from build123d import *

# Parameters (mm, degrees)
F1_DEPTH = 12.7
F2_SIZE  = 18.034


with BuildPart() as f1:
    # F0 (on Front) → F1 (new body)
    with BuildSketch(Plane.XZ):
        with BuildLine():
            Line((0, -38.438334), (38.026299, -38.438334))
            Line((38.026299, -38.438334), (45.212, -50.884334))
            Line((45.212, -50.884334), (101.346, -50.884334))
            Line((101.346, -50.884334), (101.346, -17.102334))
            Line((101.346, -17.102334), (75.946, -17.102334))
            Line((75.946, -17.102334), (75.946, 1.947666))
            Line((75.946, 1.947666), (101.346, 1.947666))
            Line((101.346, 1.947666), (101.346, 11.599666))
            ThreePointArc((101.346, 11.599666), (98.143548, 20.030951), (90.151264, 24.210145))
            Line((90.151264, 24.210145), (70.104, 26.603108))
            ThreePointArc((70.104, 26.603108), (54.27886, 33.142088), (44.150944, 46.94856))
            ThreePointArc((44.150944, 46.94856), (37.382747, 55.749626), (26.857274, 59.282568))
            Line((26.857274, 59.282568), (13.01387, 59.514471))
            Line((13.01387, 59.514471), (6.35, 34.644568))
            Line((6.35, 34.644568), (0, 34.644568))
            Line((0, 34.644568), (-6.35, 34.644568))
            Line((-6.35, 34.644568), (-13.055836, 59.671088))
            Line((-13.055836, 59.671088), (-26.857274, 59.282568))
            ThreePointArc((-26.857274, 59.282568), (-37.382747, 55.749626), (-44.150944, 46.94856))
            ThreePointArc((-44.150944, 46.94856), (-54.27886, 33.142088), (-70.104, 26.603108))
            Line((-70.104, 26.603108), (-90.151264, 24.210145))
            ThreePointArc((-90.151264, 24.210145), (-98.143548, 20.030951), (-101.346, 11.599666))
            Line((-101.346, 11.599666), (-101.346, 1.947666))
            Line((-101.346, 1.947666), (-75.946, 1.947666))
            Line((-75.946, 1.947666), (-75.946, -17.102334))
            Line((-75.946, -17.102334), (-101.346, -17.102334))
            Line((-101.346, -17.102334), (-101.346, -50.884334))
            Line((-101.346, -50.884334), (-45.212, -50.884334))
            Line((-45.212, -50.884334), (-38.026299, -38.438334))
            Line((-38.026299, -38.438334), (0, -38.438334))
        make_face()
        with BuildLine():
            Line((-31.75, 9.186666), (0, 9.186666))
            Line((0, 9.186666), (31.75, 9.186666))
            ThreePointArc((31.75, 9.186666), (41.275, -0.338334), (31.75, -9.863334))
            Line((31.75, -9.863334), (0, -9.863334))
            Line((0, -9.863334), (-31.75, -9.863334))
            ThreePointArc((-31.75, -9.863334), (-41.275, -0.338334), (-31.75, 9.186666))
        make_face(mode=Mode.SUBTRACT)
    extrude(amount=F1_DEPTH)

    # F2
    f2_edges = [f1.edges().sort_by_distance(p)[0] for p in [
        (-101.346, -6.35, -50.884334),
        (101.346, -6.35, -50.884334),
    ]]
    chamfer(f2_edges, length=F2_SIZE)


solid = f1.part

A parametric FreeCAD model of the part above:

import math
import FreeCAD as App
import Part
import Sketcher
Q = App.Units.Quantity


def edges_at(feature, points):
    """Names of the edges that pass closest to the given points."""
    edges = feature.Shape.Edges
    near = lambda p: min(range(len(edges)), key=lambda i: edges[i].distToShape(Part.Vertex(*p))[0])
    return sorted({f"Edge{near(p) + 1}" for p in points})

doc = App.newDocument("Part")
body = doc.addObject("PartDesign::Body", "Body")

# Sketch on XZ plane
sketch1 = doc.addObject("Sketcher::SketchObject", "Sketch")
body.addObject(sketch1)
sketch1.AttachmentSupport = (doc.XZ_Plane, [""])
sketch1.MapMode = "FlatFace"
sketch1.addGeometry([
    Part.LineSegment(App.Vector(38.026299, -38.438334, 0), App.Vector(45.212, -50.884334, 0)),  # 0
    Part.LineSegment(App.Vector(45.212, -50.884334, 0), App.Vector(101.346, -50.884334, 0)),  # 1
    Part.LineSegment(App.Vector(101.346, -50.884334, 0), App.Vector(101.346, -17.102334, 0)),  # 2
    Part.LineSegment(App.Vector(101.346, -17.102334, 0), App.Vector(75.946, -17.102334, 0)),  # 3
    Part.LineSegment(App.Vector(75.946, -17.102334, 0), App.Vector(75.946, 1.947666, 0)),  # 4
    Part.LineSegment(App.Vector(75.946, 1.947666, 0), App.Vector(101.346, 1.947666, 0)),  # 5
    Part.LineSegment(App.Vector(101.346, 1.947666, 0), App.Vector(101.346, 11.599666, 0)),  # 6
    Part.ArcOfCircle(Part.Circle(App.Vector(88.645998, 11.599664, 0), App.Vector(0, 0, 1), 12.700002), math.radians(0.000007), math.radians(83.193025)),  # 7
    Part.LineSegment(App.Vector(90.151264, 24.210145, 0), App.Vector(70.104, 26.603108, 0)),  # 8
    Part.ArcOfCircle(Part.Circle(App.Vector(73.867159, 58.129306, 0), App.Vector(0, 0, 1), 31.75), math.radians(-159.381157), math.radians(-96.806966)),  # 9
    Part.ArcOfCircle(Part.Circle(App.Vector(26.321217, 40.240114, 0), App.Vector(0, 0, 1), 19.049998), math.radians(20.618842), math.radians(88.387513)),  # 10
    Part.LineSegment(App.Vector(26.857274, 59.282568, 0), App.Vector(13.01387, 59.514471, 0)),  # 11
    Part.LineSegment(App.Vector(13.01387, 59.514471, 0), App.Vector(6.35, 34.644568, 0)),  # 12
    Part.LineSegment(App.Vector(6.35, 34.644568, 0), App.Vector(-6.35, 34.644568, 0)),  # 13
    Part.LineSegment(App.Vector(-6.35, 34.644568, 0), App.Vector(-13.055836, 59.671088, 0)),  # 14
    Part.LineSegment(App.Vector(-13.055836, 59.671088, 0), App.Vector(-26.857274, 59.282568, 0)),  # 15
    Part.ArcOfCircle(Part.Circle(App.Vector(-26.321217, 40.240114, 0), App.Vector(0, 0, 1), 19.049998), math.radians(91.612487), math.radians(159.381158)),  # 16
    Part.ArcOfCircle(Part.Circle(App.Vector(-73.867159, 58.129306, 0), App.Vector(0, 0, 1), 31.75), math.radians(-83.193034), math.radians(-20.618843)),  # 17
    Part.LineSegment(App.Vector(-70.104, 26.603108, 0), App.Vector(-90.151264, 24.210145, 0)),  # 18
    Part.ArcOfCircle(Part.Circle(App.Vector(-88.645998, 11.599664, 0), App.Vector(0, 0, 1), 12.700002), math.radians(96.806975), math.radians(179.999993)),  # 19
    Part.LineSegment(App.Vector(-101.346, 11.599666, 0), App.Vector(-101.346, 1.947666, 0)),  # 20
    Part.LineSegment(App.Vector(-101.346, 1.947666, 0), App.Vector(-75.946, 1.947666, 0)),  # 21
    Part.LineSegment(App.Vector(-75.946, 1.947666, 0), App.Vector(-75.946, -17.102334, 0)),  # 22
    Part.LineSegment(App.Vector(-75.946, -17.102334, 0), App.Vector(-101.346, -17.102334, 0)),  # 23
    Part.LineSegment(App.Vector(-101.346, -17.102334, 0), App.Vector(-101.346, -50.884334, 0)),  # 24
    Part.LineSegment(App.Vector(-101.346, -50.884334, 0), App.Vector(-45.212, -50.884334, 0)),  # 25
    Part.LineSegment(App.Vector(-45.212, -50.884334, 0), App.Vector(-38.026299, -38.438334, 0)),  # 26
    Part.LineSegment(App.Vector(-38.026299, -38.438334, 0), App.Vector(38.026299, -38.438334, 0)),  # 27
    Part.ArcOfCircle(Part.Circle(App.Vector(-31.75, -0.338334, 0), App.Vector(0, 0, 1), 9.525), math.radians(90), math.radians(270)),  # 28
    Part.LineSegment(App.Vector(-31.75, 9.186666, 0), App.Vector(31.75, 9.186666, 0)),  # 29
    Part.ArcOfCircle(Part.Circle(App.Vector(31.75, -0.338334, 0), App.Vector(0, 0, 1), 9.525), math.radians(-90), math.radians(90)),  # 30
    Part.LineSegment(App.Vector(31.75, -9.863334, 0), App.Vector(-31.75, -9.863334, 0)),  # 31
], False)
sketch1.addConstraint([
    Sketcher.Constraint("Coincident", 0, 2, 1, 1),
    Sketcher.Constraint("Coincident", 1, 2, 2, 1),
    Sketcher.Constraint("Coincident", 2, 2, 3, 1),
    Sketcher.Constraint("Coincident", 3, 2, 4, 1),
    Sketcher.Constraint("Coincident", 4, 2, 5, 1),
    Sketcher.Constraint("Coincident", 5, 2, 6, 1),
    Sketcher.Constraint("Tangent", 6, 2, 7, 1),
    Sketcher.Constraint("Tangent", 7, 2, 8, 1),
    Sketcher.Constraint("Tangent", 8, 2, 9, 2),
    Sketcher.Constraint("Tangent", 9, 1, 10, 1),
    Sketcher.Constraint("Coincident", 10, 2, 11, 1),
    Sketcher.Constraint("Coincident", 11, 2, 12, 1),
    Sketcher.Constraint("Coincident", 12, 2, 13, 1),
    Sketcher.Constraint("Coincident", 13, 2, 14, 1),
    Sketcher.Constraint("Coincident", 14, 2, 15, 1),
    Sketcher.Constraint("Tangent", 15, 2, 16, 1),
    Sketcher.Constraint("Tangent", 16, 2, 17, 2),
    Sketcher.Constraint("Tangent", 17, 1, 18, 1),
    Sketcher.Constraint("Tangent", 18, 2, 19, 1),
    Sketcher.Constraint("Tangent", 19, 2, 20, 1),
    Sketcher.Constraint("Coincident", 20, 2, 21, 1),
    Sketcher.Constraint("Coincident", 21, 2, 22, 1),
    Sketcher.Constraint("Coincident", 22, 2, 23, 1),
    Sketcher.Constraint("Coincident", 23, 2, 24, 1),
    Sketcher.Constraint("Coincident", 24, 2, 25, 1),
    Sketcher.Constraint("Coincident", 25, 2, 26, 1),
    Sketcher.Constraint("Coincident", 26, 2, 27, 1),
    Sketcher.Constraint("Coincident", 27, 2, 0, 1),
    Sketcher.Constraint("Tangent", 28, 1, 29, 1),
    Sketcher.Constraint("Tangent", 29, 2, 30, 2),
    Sketcher.Constraint("Tangent", 30, 1, 31, 1),
    Sketcher.Constraint("Tangent", 31, 2, 28, 2),
    Sketcher.Constraint("Horizontal", 1),
    Sketcher.Constraint("Vertical", 2),
    Sketcher.Constraint("Horizontal", 3),
    Sketcher.Constraint("Vertical", 4),
    Sketcher.Constraint("Horizontal", 5),
    Sketcher.Constraint("Vertical", 6),
    Sketcher.Constraint("Horizontal", 13),
    Sketcher.Constraint("Vertical", 20),
    Sketcher.Constraint("Horizontal", 21),
    Sketcher.Constraint("Vertical", 22),
    Sketcher.Constraint("Horizontal", 23),
    Sketcher.Constraint("Vertical", 24),
    Sketcher.Constraint("Horizontal", 25),
    Sketcher.Constraint("Horizontal", 27),
    Sketcher.Constraint("Horizontal", 29),
    Sketcher.Constraint("Horizontal", 31),
    Sketcher.Constraint("Equal", 10, 16),
    Sketcher.Constraint("Equal", 9, 17),
    Sketcher.Constraint("Equal", 7, 19),
    Sketcher.Constraint("Symmetric", 10, 3, 16, 3, -2),
    Sketcher.Constraint("Symmetric", 7, 3, 19, 3, -2),
    Sketcher.Constraint("Symmetric", 4, 2, 21, 2, -2),
    Sketcher.Constraint("Symmetric", 2, 2, 23, 2, -2),
    Sketcher.Constraint("Symmetric", 0, 2, 25, 2, -2),
    Sketcher.Constraint("Horizontal", 9, 3, 17, 3),
    Sketcher.Constraint("Horizontal", 10, 2, 15, 2),
    Sketcher.Constraint("Vertical", 2, 2, 5, 2),
    Sketcher.Constraint("Equal", 0, 26),
    Sketcher.Constraint("Radius", 7, Q("0.5000001 in")),
    Sketcher.Constraint("DistanceX", 3, 2, 3, 1, Q("1 in")),
    Sketcher.Constraint("Radius", 9, Q("1.25 in")),
    Sketcher.Constraint("Radius", 10, Q("0.7499999 in")),
    Sketcher.Constraint("DistanceX", 13, 2, 13, 1, Q("0.5 in")),
    Sketcher.Constraint("DistanceX", 29, 1, 29, 2, Q("2.5 in")),
    Sketcher.Constraint("Angle", 0, Q("-60.000002 deg")),
    Sketcher.Constraint("Angle", 12, Q("-104.999999 deg")),
    Sketcher.Constraint("Angle", 14, Q("105 deg")),
    Sketcher.Constraint("Radius", 28, Q("0.375 in")),
    Sketcher.Constraint("DistanceX", 28, 1, 13, 2, Q("1 in")),
    Sketcher.Constraint("DistanceX", 1, 1, 1, 2, Q("2.21 in")),
    Sketcher.Constraint("DistanceY", 2, 1, 2, 2, Q("1.33 in")),
    Sketcher.Constraint("DistanceY", 4, 1, 4, 2, Q("0.75 in")),
    Sketcher.Constraint("DistanceY", 6, 1, 6, 2, Q("0.38 in")),
    Sketcher.Constraint("DistanceY", 26, 2, 28, 3, Q("1.5 in")),
    Sketcher.Constraint("DistanceX", -1, 1, 7, 3, Q("3.4899999 in")),
    Sketcher.Constraint("DistanceX", 28, 3, -1, 1, Q("1.25 in")),
    Sketcher.Constraint("DistanceX", -1, 1, 8, 2, Q("2.76 in")),
    Sketcher.Constraint("DistanceY", 28, 3, 19, 3, Q("0.4699999 in")),
    Sketcher.Constraint("DistanceY", 12, 2, 10, 2, Q("0.97 in")),
    Sketcher.Constraint("DistanceY", 7, 2, 9, 3, Q("1.3354 in")),
    Sketcher.Constraint("DistanceY", 28, 1, 13, 2, Q("25.457902 mm")),
    Sketcher.Constraint("Distance", 12, Q("25.747218 mm")),
    Sketcher.Constraint("Distance", 14, Q("25.90936 mm")),
    Sketcher.Constraint("DistanceY", -1, 1, 9, 1, Q("46.94856 mm")),
])
pad1 = doc.addObject("PartDesign::Pad", "Pad")
body.addObject(pad1)
pad1.Profile = sketch1
pad1.Length = Q("0.5 in")
doc.recompute()

chamfer = doc.addObject("PartDesign::Chamfer", "Chamfer")
body.addObject(chamfer)
chamfer.Base = (pad1, edges_at(pad1, [(-101.346, -6.35, -50.884), (101.346, -6.35, -50.884)]))
chamfer.Size = Q("0.71 in")

doc.recompute()
